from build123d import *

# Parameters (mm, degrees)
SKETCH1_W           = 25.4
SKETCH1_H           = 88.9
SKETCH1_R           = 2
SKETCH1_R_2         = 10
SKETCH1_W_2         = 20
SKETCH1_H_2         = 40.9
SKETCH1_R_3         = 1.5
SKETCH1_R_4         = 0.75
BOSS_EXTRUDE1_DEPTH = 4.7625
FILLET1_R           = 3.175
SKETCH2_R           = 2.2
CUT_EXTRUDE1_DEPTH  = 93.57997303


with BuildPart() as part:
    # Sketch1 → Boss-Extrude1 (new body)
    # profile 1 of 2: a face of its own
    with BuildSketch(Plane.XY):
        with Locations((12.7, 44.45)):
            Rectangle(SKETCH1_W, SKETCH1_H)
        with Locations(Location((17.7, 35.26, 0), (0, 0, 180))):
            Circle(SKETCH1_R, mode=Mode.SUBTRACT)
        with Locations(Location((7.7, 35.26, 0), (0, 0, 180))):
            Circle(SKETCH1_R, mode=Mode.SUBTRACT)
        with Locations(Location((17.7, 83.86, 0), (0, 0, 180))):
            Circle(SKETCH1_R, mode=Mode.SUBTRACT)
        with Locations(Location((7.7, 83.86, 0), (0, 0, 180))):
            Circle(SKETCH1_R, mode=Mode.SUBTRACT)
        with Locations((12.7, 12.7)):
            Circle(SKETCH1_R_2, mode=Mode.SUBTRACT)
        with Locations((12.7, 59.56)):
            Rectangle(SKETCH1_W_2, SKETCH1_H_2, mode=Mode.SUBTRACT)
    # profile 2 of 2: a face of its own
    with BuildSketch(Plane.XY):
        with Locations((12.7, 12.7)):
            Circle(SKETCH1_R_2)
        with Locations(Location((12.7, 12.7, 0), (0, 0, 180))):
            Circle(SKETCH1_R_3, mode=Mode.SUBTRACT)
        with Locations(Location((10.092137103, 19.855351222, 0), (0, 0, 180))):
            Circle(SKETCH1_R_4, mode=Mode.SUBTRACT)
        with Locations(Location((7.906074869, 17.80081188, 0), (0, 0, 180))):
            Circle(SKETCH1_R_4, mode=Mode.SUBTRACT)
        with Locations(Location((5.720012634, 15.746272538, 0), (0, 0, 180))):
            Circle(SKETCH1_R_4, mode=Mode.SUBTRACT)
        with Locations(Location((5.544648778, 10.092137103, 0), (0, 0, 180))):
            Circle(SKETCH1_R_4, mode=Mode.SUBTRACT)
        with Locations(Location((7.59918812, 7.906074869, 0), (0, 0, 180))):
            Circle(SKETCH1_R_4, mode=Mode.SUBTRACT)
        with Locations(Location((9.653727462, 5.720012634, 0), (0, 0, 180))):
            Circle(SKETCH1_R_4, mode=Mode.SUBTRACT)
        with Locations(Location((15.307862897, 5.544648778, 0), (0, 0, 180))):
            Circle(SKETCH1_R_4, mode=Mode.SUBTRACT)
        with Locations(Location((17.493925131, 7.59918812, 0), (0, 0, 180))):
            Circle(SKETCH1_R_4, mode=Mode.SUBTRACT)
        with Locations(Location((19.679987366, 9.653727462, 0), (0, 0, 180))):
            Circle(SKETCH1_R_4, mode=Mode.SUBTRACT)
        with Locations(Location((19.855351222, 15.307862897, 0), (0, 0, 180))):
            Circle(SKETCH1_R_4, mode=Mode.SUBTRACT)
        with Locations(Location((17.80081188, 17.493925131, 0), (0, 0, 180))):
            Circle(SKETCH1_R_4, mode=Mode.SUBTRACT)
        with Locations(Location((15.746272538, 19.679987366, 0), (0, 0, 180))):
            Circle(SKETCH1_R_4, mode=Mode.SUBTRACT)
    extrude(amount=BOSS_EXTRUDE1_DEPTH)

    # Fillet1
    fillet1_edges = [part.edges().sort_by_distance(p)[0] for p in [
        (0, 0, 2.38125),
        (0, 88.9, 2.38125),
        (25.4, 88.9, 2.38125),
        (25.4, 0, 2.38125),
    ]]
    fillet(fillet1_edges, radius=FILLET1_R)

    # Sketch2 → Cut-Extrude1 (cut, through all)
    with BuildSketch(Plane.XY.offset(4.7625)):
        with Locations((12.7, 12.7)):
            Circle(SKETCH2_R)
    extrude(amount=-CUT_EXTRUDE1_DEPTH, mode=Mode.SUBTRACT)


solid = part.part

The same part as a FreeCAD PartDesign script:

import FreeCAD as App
import Part
import Sketcher
Q = App.Units.Quantity


def edges_at(feature, points):
    """Names of the edges that pass closest to the given points."""
    edges = feature.Shape.Edges
    near = lambda p: min(range(len(edges)), key=lambda i: edges[i].distToShape(Part.Vertex(*p))[0])
    return sorted({f"Edge{near(p) + 1}" for p in points})


def add_polygon(sketch, points):
    """Adds a closed chain of lines whose ends are joined by coincident constraints."""
    first, n = sketch.GeometryCount, len(points)
    for a, b in zip(points, points[1:] + points[:1]):
        sketch.addGeometry(Part.LineSegment(App.Vector(*a, 0), App.Vector(*b, 0)), False)
    for i in range(n):
        sketch.addConstraint(Sketcher.Constraint("Coincident", first + i, 2, first + (i + 1) % n, 1))

doc = App.newDocument("Part")
body = doc.addObject("PartDesign::Body", "Body")

# Sketch on XY plane
sketch1 = body.newObject("Sketcher::SketchObject", "Sketch")
sketch1.AttachmentSupport = (doc.getObject("XY_Plane"), [""])
sketch1.MapMode = "FlatFace"
add_polygon(sketch1, [(0, 88.9), (0, 0), (25.4, 0), (25.4, 88.9)])  # lines 0-3
sketch1.addGeometry(Part.Circle(App.Vector(7.7, 35.26, 0), App.Vector(0, 0, 1), 2), False)  # 4
sketch1.addGeometry(Part.Circle(App.Vector(17.7, 35.26, 0), App.Vector(0, 0, 1), 2), False)  # 5
sketch1.addGeometry(Part.Circle(App.Vector(7.7, 83.86, 0), App.Vector(0, 0, 1), 2), False)  # 6
add_polygon(sketch1, [(22.7, 39.11), (2.7, 39.11), (2.7, 80.01), (22.7, 80.01)])  # lines 7-10
sketch1.addGeometry(Part.Circle(App.Vector(17.7, 83.86, 0), App.Vector(0, 0, 1), 2), False)  # 11
sketch1.addGeometry(Part.Circle(App.Vector(17.800812, 17.493925, 0), App.Vector(0, 0, 1), 0.75), False)  # 12
sketch1.addGeometry(Part.Circle(App.Vector(7.599188, 7.906075, 0), App.Vector(0, 0, 1), 0.75), False)  # 13
sketch1.addGeometry(Part.Circle(App.Vector(9.653727, 5.720013, 0), App.Vector(0, 0, 1), 0.75), False)  # 14
sketch1.addGeometry(Part.Circle(App.Vector(5.544649, 10.092137, 0), App.Vector(0, 0, 1), 0.75), False)  # 15
sketch1.addGeometry(Part.Circle(App.Vector(12.7, 12.7, 0), App.Vector(0, 0, 1), 1.5), False)  # 16
sketch1.addGeometry(Part.Circle(App.Vector(15.307863, 5.544649, 0), App.Vector(0, 0, 1), 0.75), False)  # 17
sketch1.addGeometry(Part.Circle(App.Vector(17.493925, 7.599188, 0), App.Vector(0, 0, 1), 0.75), False)  # 18
sketch1.addGeometry(Part.Circle(App.Vector(19.679987, 9.653727, 0), App.Vector(0, 0, 1), 0.75), False)  # 19
sketch1.addGeometry(Part.Circle(App.Vector(5.720013, 15.746273, 0), App.Vector(0, 0, 1), 0.75), False)  # 20
sketch1.addGeometry(Part.Circle(App.Vector(7.906075, 17.800812, 0), App.Vector(0, 0, 1), 0.75), False)  # 21
sketch1.addGeometry(Part.Circle(App.Vector(10.092137, 19.855351, 0), App.Vector(0, 0, 1), 0.75), False)  # 22
sketch1.addGeometry(Part.Circle(App.Vector(19.855351, 15.307863, 0), App.Vector(0, 0, 1), 0.75), False)  # 23
sketch1.addGeometry(Part.Circle(App.Vector(15.746273, 19.679987, 0), App.Vector(0, 0, 1), 0.75), False)  # 24
sketch1.addConstraint([
    Sketcher.Constraint("Vertical", 0),
    Sketcher.Constraint("Horizontal", 1),
    Sketcher.Constraint("Vertical", 2),
    Sketcher.Constraint("Horizontal", 3),
    Sketcher.Constraint("Horizontal", 7),
    Sketcher.Constraint("Vertical", 8),
    Sketcher.Constraint("Horizontal", 9),
    Sketcher.Constraint("Vertical", 10),
    Sketcher.Constraint("Coincident", 0, 2, -1, 1),
    Sketcher.Constraint("Equal", 4, 5),
    Sketcher.Constraint("Equal", 5, 6),
    Sketcher.Constraint("Equal", 6, 11),
    Sketcher.Constraint("Equal", 12, 13),
    Sketcher.Constraint("Equal", 13, 14),
    Sketcher.Constraint("Equal", 14, 15),
    Sketcher.Constraint("Equal", 15, 17),
    Sketcher.Constraint("Equal", 17, 18),
    Sketcher.Constraint("Equal", 18, 19),
    Sketcher.Constraint("Equal", 19, 20),
    Sketcher.Constraint("Equal", 20, 21),
    Sketcher.Constraint("Equal", 21, 22),
    Sketcher.Constraint("Equal", 22, 23),
    Sketcher.Constraint("Equal", 23, 24),
    Sketcher.Constraint("Horizontal", 4, 3, 5, 3),
    Sketcher.Constraint("Horizontal", 6, 3, 11, 3),
    Sketcher.Constraint("Vertical", 4, 3, 6, 3),
    Sketcher.Constraint("Vertical", 5, 3, 11, 3),
    Sketcher.Constraint("Diameter", 4, Q("4 mm")),
    Sketcher.Constraint("Diameter", 16, Q("3 mm")),
    Sketcher.Constraint("Diameter", 12, Q("1.5 mm")),
    Sketcher.Constraint("DistanceX", 7, 2, 7, 1, Q("20 mm")),
    Sketcher.Constraint("DistanceX", 1, 1, 1, 2, Q("25.4 mm")),
    Sketcher.Constraint("DistanceY", 0, 2, 0, 1, Q("88.9 mm")),
    Sketcher.Constraint("DistanceY", 8, 1, 8, 2, Q("40.9 mm")),
    Sketcher.Constraint("DistanceX", 4, 3, 5, 3, Q("10 mm")),
    Sketcher.Constraint("DistanceX", 4, 3, 16, 3, Q("5 mm")),
    Sketcher.Constraint("DistanceX", 7, 2, 4, 3, Q("5 mm")),
    Sketcher.Constraint("DistanceX", -1, 1, 4, 3, Q("7.7 mm")),
    Sketcher.Constraint("DistanceY", -1, 1, 16, 3, Q("12.7 mm")),
    Sketcher.Constraint("DistanceY", 4, 3, 6, 3, Q("48.6 mm")),
    Sketcher.Constraint("DistanceY", -1, 1, 4, 3, Q("35.26 mm")),
    Sketcher.Constraint("DistanceY", -1, 1, 7, 2, Q("39.11 mm")),
    Sketcher.Constraint("DistanceX", 20, 3, 12, 3, Q("12.080799 mm")),
    Sketcher.Constraint("DistanceX", -1, 1, 12, 3, Q("17.800812 mm")),
    Sketcher.Constraint("DistanceX", -1, 1, 13, 3, Q("7.599188 mm")),
    Sketcher.Constraint("DistanceX", -1, 1, 15, 3, Q("5.544649 mm")),
    Sketcher.Constraint("DistanceY", -1, 1, 17, 3, Q("5.544649 mm")),
    Sketcher.Constraint("DistanceY", -1, 1, 18, 3, Q("7.599188 mm")),
    Sketcher.Constraint("DistanceY", -1, 1, 21, 3, Q("17.800812 mm")),
    Sketcher.Constraint("DistanceY", -1, 1, 22, 3, Q("19.855351 mm")),
    Sketcher.Constraint("DistanceX", -1, 1, 23, 3, Q("19.855351 mm")),
    Sketcher.Constraint("DistanceY", 13, 3, 12, 3, Q("9.58785 mm")),
    Sketcher.Constraint("DistanceX", 13, 3, 14, 3, Q("2.054539 mm")),
    Sketcher.Constraint("DistanceY", 15, 3, 12, 3, Q("7.401788 mm")),
    Sketcher.Constraint("DistanceY", 17, 3, 15, 3, Q("4.547488 mm")),
    Sketcher.Constraint("DistanceX", 17, 3, 12, 3, Q("2.492949 mm")),
    Sketcher.Constraint("DistanceY", 18, 3, 19, 3, Q("2.054539 mm")),
    Sketcher.Constraint("DistanceX", 14, 3, 19, 3, Q("10.02626 mm")),
    Sketcher.Constraint("DistanceY", 14, 3, 20, 3, Q("10.02626 mm")),
    Sketcher.Constraint("DistanceY", 20, 3, 21, 3, Q("2.054539 mm")),
    Sketcher.Constraint("DistanceX", 15, 3, 22, 3, Q("4.547488 mm")),
    Sketcher.Constraint("DistanceY", 23, 3, 22, 3, Q("4.547488 mm")),
    Sketcher.Constraint("DistanceX", 24, 3, 12, 3, Q("2.054539 mm")),
    Sketcher.Constraint("DistanceX", -1, 1, 18, 3, Q("17.493925 mm")),
    Sketcher.Constraint("DistanceX", -1, 1, 21, 3, Q("7.906075 mm")),
    Sketcher.Constraint("DistanceY", -1, 1, 24, 3, Q("19.679987 mm")),
])
pad1 = body.newObject("PartDesign::Pad", "Pad")
pad1.Profile = sketch1
pad1.Length = 4.7625
doc.recompute()

fillet = body.newObject("PartDesign::Fillet", "Fillet")
fillet.Base = (pad1, edges_at(pad1, [
    (0, 0, 2.381),
    (0, 88.9, 2.381),
    (25.4, 88.9, 2.381),
    (25.4, 0, 2.381),
]))
fillet.Radius = 3.175

# Sketch on XY plane
sketch2 = body.newObject("Sketcher::SketchObject", "Sketch001")
sketch2.AttachmentSupport = (doc.getObject("XY_Plane"), [""])
sketch2.MapMode = "FlatFace"
sketch2.AttachmentOffset = App.Placement(App.Vector(0, 0, 4.7625), App.Rotation())
sketch2.addGeometry(Part.Circle(App.Vector(12.7, 12.7, 0), App.Vector(0, 0, 1), 2.2), False)
sketch2.addConstraint([
    Sketcher.Constraint("Diameter", 0, Q("4.4 mm")),
    Sketcher.Constraint("DistanceX", -1, 1, 0, 3, Q("12.7 mm")),
    Sketcher.Constraint("DistanceY", -1, 1, 0, 3, Q("12.7 mm")),
])
pocket1 = body.newObject("PartDesign::Pocket", "Pocket")
pocket1.Profile = sketch2
pocket1.Type = "ThroughAll"

doc.recompute()
